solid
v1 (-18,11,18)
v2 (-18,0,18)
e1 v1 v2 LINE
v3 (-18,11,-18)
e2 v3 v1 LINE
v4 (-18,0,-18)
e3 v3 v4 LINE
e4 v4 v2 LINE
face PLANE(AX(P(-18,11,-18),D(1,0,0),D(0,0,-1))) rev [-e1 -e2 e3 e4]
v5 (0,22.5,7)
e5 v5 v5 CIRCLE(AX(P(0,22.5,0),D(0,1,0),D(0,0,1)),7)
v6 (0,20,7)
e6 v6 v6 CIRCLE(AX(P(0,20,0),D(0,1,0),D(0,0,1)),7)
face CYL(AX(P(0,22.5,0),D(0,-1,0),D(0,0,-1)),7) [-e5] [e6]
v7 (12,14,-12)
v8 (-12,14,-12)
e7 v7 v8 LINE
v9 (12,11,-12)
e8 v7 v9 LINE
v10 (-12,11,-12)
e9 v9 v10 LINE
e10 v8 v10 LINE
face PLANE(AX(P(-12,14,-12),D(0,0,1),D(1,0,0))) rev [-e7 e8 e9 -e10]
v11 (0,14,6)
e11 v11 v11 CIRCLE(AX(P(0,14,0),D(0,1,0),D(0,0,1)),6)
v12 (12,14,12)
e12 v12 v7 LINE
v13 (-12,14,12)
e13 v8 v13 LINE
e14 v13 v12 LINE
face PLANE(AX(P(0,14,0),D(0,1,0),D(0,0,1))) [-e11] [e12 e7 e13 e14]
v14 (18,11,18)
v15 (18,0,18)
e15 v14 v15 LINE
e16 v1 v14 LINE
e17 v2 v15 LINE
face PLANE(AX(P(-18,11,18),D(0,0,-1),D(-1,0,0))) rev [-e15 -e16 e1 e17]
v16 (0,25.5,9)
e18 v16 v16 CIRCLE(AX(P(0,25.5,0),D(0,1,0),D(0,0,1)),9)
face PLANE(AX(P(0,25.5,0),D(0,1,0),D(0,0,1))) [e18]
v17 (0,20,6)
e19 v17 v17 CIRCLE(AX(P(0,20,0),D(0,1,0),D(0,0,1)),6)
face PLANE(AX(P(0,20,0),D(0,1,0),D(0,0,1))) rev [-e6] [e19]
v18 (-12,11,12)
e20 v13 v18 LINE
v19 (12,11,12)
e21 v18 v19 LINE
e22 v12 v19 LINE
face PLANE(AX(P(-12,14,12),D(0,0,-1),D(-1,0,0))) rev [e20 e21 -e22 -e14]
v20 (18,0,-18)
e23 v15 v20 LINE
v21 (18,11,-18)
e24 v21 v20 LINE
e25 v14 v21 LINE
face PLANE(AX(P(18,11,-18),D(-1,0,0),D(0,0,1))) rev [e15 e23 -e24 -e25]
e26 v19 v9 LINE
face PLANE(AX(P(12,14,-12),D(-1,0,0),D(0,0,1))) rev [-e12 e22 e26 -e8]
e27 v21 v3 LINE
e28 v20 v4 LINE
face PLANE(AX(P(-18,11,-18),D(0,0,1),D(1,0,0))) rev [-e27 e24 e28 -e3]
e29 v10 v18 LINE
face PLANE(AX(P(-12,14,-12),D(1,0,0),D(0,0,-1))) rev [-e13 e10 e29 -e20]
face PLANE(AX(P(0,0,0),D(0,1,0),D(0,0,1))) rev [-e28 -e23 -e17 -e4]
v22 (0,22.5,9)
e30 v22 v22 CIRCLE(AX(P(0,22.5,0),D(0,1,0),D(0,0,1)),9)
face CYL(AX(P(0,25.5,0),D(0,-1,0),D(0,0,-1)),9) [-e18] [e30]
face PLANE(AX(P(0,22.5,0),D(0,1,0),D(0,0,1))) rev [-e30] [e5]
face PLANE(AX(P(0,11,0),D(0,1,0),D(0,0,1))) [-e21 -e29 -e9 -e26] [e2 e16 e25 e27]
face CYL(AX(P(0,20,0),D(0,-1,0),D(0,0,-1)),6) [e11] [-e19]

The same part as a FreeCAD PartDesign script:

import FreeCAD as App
import Part
import Sketcher
Q = App.Units.Quantity

doc = App.newDocument("Part")
body = doc.addObject("PartDesign::Body", "Body")

# Sketch on XZ plane
sketch1 = body.newObject("Sketcher::SketchObject", "Sketch")
sketch1.AttachmentSupport = (doc.getObject("XZ_Plane"), [""])
sketch1.MapMode = "FlatFace"
sketch1.addGeometry(Part.LineSegment(App.Vector(-18, -18, 0), App.Vector(-18, 18, 0)), False)
sketch1.addGeometry(Part.LineSegment(App.Vector(-18, 18, 0), App.Vector(18, 18, 0)), False)
sketch1.addGeometry(Part.LineSegment(App.Vector(18, 18, 0), App.Vector(18, -18, 0)), False)
sketch1.addGeometry(Part.LineSegment(App.Vector(18, -18, 0), App.Vector(-18, -18, 0)), False)
sketch1.addConstraint(Sketcher.Constraint("Coincident", 0, 2, 1, 1))
sketch1.addConstraint(Sketcher.Constraint("Coincident", 1, 2, 2, 1))
sketch1.addConstraint(Sketcher.Constraint("Coincident", 2, 2, 3, 1))
sketch1.addConstraint(Sketcher.Constraint("Coincident", 3, 2, 0, 1))
sketch1.addConstraint(Sketcher.Constraint("Vertical", 0))
sketch1.addConstraint(Sketcher.Constraint("Horizontal", 1))
sketch1.addConstraint(Sketcher.Constraint("Vertical", 2))
sketch1.addConstraint(Sketcher.Constraint("Horizontal", 3))
sketch1.addConstraint(Sketcher.Constraint("Symmetric", 0, 2, 2, 2, -1, 1))
sketch1.addConstraint(Sketcher.Constraint("Equal", 3, 0))
sketch1.addConstraint(Sketcher.Constraint("DistanceX", 1, 1, 1, 2, Q("36 mm")))
pad1 = body.newObject("PartDesign::Pad", "Pad")
pad1.Profile = sketch1
pad1.Length = 11
pad1.Reversed = True

# Sketch on XZ plane
sketch2 = body.newObject("Sketcher::SketchObject", "Sketch001")
sketch2.AttachmentSupport = (doc.getObject("XZ_Plane"), [""])
sketch2.MapMode = "FlatFace"
sketch2.AttachmentOffset = App.Placement(App.Vector(0, 0, -11), App.Rotation())
sketch2.addGeometry(Part.LineSegment(App.Vector(-12, -12, 0), App.Vector(-12, 12, 0)), False)
sketch2.addGeometry(Part.LineSegment(App.Vector(-12, 12, 0), App.Vector(12, 12, 0)), False)
sketch2.addGeometry(Part.LineSegment(App.Vector(12, 12, 0), App.Vector(12, -12, 0)), False)
sketch2.addGeometry(Part.LineSegment(App.Vector(12, -12, 0), App.Vector(-12, -12, 0)), False)
sketch2.addConstraint(Sketcher.Constraint("Coincident", 0, 2, 1, 1))
sketch2.addConstraint(Sketcher.Constraint("Coincident", 1, 2, 2, 1))
sketch2.addConstraint(Sketcher.Constraint("Coincident", 2, 2, 3, 1))
sketch2.addConstraint(Sketcher.Constraint("Coincident", 3, 2, 0, 1))
sketch2.addConstraint(Sketcher.Constraint("Vertical", 0))
sketch2.addConstraint(Sketcher.Constraint("Horizontal", 1))
sketch2.addConstraint(Sketcher.Constraint("Vertical", 2))
sketch2.addConstraint(Sketcher.Constraint("Horizontal", 3))
sketch2.addConstraint(Sketcher.Constraint("Symmetric", 0, 2, 2, 2, -1, 1))
sketch2.addConstraint(Sketcher.Constraint("Equal", 3, 0))
sketch2.addConstraint(Sketcher.Constraint("DistanceX", 1, 1, 1, 2, Q("24 mm")))
pad2 = body.newObject("PartDesign::Pad", "Pad001")
pad2.Profile = sketch2
pad2.Length = 3
pad2.Reversed = True

# Sketch on XZ plane
sketch3 = body.newObject("Sketcher::SketchObject", "Sketch002")
sketch3.AttachmentSupport = (doc.getObject("XZ_Plane"), [""])
sketch3.MapMode = "FlatFace"
sketch3.AttachmentOffset = App.Placement(App.Vector(0, 0, -14), App.Rotation())
sketch3.addGeometry(Part.Circle(App.Vector(0, 0, 0), App.Vector(0, 0, 1), 6), False)
sketch3.addConstraint(Sketcher.Constraint("Coincident", 0, 3, -1, 1))
sketch3.addConstraint(Sketcher.Constraint("Diameter", 0, Q("12 mm")))
pad3 = body.newObject("PartDesign::Pad", "Pad002")
pad3.Profile = sketch3
pad3.Length = 6
pad3.Reversed = True

# Sketch on XZ plane
sketch4 = body.newObject("Sketcher::SketchObject", "Sketch003")
sketch4.AttachmentSupport = (doc.getObject("XZ_Plane"), [""])
sketch4.MapMode = "FlatFace"
sketch4.AttachmentOffset = App.Placement(App.Vector(0, 0, -20), App.Rotation())
sketch4.addGeometry(Part.Circle(App.Vector(0, 0, 0), App.Vector(0, 0, 1), 7), False)
sketch4.addConstraint(Sketcher.Constraint("Coincident", 0, 3, -1, 1))
sketch4.addConstraint(Sketcher.Constraint("Diameter", 0, Q("14 mm")))
pad4 = body.newObject("PartDesign::Pad", "Pad003")
pad4.Profile = sketch4
pad4.Length = 2.5
pad4.Reversed = True

# Sketch on XZ plane
sketch5 = body.newObject("Sketcher::SketchObject", "Sketch004")
sketch5.AttachmentSupport = (doc.getObject("XZ_Plane"), [""])
sketch5.MapMode = "FlatFace"
sketch5.AttachmentOffset = App.Placement(App.Vector(0, 0, -22.5), App.Rotation())
sketch5.addGeometry(Part.Circle(App.Vector(0, 0, 0), App.Vector(0, 0, 1), 9), False)
sketch5.addConstraint(Sketcher.Constraint("Coincident", 0, 3, -1, 1))
sketch5.addConstraint(Sketcher.Constraint("Diameter", 0, Q("18 mm")))
pad5 = body.newObject("PartDesign::Pad", "Pad004")
pad5.Profile = sketch5
pad5.Length = 3
pad5.Reversed = True

doc.recompute()
